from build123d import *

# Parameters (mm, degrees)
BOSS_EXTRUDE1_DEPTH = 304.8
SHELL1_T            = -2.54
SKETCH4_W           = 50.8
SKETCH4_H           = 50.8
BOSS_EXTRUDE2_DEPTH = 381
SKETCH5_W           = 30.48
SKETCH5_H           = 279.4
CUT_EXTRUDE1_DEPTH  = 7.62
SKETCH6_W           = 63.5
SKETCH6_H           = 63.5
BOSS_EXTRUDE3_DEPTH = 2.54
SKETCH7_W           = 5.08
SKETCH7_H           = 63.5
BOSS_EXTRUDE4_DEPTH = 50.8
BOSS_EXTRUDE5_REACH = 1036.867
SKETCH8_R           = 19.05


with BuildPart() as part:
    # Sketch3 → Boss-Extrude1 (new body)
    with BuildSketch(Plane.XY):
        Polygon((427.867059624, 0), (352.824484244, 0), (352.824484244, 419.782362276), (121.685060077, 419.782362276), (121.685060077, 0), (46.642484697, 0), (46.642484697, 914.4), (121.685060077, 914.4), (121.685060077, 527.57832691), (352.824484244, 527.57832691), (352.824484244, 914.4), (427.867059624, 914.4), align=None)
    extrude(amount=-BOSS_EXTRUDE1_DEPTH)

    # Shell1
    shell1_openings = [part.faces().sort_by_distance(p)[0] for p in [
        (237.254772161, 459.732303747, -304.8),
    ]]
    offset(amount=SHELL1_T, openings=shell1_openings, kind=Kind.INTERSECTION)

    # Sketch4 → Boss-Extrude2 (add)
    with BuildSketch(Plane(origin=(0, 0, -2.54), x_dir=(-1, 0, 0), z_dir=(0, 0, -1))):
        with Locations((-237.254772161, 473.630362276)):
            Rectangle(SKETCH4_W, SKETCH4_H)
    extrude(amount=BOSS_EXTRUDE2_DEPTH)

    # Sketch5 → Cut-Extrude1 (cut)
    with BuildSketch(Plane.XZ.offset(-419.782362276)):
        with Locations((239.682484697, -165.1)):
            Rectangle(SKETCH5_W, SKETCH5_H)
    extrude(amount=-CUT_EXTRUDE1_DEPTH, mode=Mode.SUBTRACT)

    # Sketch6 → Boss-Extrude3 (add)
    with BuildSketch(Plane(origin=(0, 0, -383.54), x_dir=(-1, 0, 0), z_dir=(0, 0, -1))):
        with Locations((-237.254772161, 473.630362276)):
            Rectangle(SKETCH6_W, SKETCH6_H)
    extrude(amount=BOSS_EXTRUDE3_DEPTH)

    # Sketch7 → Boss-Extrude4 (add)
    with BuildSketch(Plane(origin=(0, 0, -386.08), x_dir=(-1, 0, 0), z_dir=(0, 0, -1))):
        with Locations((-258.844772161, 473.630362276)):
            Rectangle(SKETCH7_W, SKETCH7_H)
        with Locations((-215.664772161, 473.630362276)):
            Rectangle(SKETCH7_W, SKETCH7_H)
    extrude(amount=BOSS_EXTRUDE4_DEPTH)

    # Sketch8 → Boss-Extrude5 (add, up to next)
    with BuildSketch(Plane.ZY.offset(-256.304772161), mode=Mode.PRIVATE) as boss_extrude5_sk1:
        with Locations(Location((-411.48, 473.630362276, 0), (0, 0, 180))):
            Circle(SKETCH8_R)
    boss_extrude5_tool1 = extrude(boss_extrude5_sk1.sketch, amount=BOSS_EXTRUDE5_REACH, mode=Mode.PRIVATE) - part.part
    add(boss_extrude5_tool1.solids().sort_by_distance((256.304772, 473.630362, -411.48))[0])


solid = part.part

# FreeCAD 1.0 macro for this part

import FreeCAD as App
import Part
import Sketcher
from FreeCAD import Vector
Q = App.Units.Quantity


def faces_at(feature, points):
    """Names of the faces that lie closest to the given points."""
    faces = feature.Shape.Faces
    near = lambda p: min(range(len(faces)), key=lambda i: faces[i].distToShape(Part.Vertex(*p))[0])
    return sorted({f"Face{near(p) + 1}" for p in points})

doc = App.newDocument("Part")
body = doc.addObject("PartDesign::Body", "Body")

sketch1 = body.newObject("Sketcher::SketchObject", "Sketch")
sketch1.AttachmentSupport = (doc.getObject("XY_Plane"), [""])
sketch1.MapMode = "FlatFace"
sketch1.addGeometry(Part.LineSegment(Vector(353, 0, 0), Vector(428, 0, 0)), False)
sketch1.addGeometry(Part.LineSegment(Vector(428, 0, 0), Vector(428, 914, 0)), False)
sketch1.addGeometry(Part.LineSegment(Vector(428, 914, 0), Vector(353, 914, 0)), False)
sketch1.addGeometry(Part.LineSegment(Vector(353, 914, 0), Vector(353, 528, 0)), False)
sketch1.addGeometry(Part.LineSegment(Vector(353, 528, 0), Vector(122, 528, 0)), False)
sketch1.addGeometry(Part.LineSegment(Vector(122, 528, 0), Vector(122, 914, 0)), False)
sketch1.addGeometry(Part.LineSegment(Vector(122, 914, 0), Vector(47, 914, 0)), False)
sketch1.addGeometry(Part.LineSegment(Vector(47, 914, 0), Vector(47, 0, 0)), False)
sketch1.addGeometry(Part.LineSegment(Vector(47, 0, 0), Vector(122, 0, 0)), False)
sketch1.addGeometry(Part.LineSegment(Vector(122, 0, 0), Vector(122, 420, 0)), False)
sketch1.addGeometry(Part.LineSegment(Vector(122, 420, 0), Vector(353, 420, 0)), False)
sketch1.addGeometry(Part.LineSegment(Vector(353, 420, 0), Vector(353, 0, 0)), False)
sketch1.addConstraint(Sketcher.Constraint("Coincident", 0, 2, 1, 1))
sketch1.addConstraint(Sketcher.Constraint("Coincident", 1, 2, 2, 1))
sketch1.addConstraint(Sketcher.Constraint("Coincident", 2, 2, 3, 1))
sketch1.addConstraint(Sketcher.Constraint("Coincident", 3, 2, 4, 1))
sketch1.addConstraint(Sketcher.Constraint("Coincident", 4, 2, 5, 1))
sketch1.addConstraint(Sketcher.Constraint("Coincident", 5, 2, 6, 1))
sketch1.addConstraint(Sketcher.Constraint("Coincident", 6, 2, 7, 1))
sketch1.addConstraint(Sketcher.Constraint("Coincident", 7, 2, 8, 1))
sketch1.addConstraint(Sketcher.Constraint("Coincident", 8, 2, 9, 1))
sketch1.addConstraint(Sketcher.Constraint("Coincident", 9, 2, 10, 1))
sketch1.addConstraint(Sketcher.Constraint("Coincident", 10, 2, 11, 1))
sketch1.addConstraint(Sketcher.Constraint("Coincident", 11, 2, 0, 1))
sketch1.addConstraint(Sketcher.Constraint("Horizontal", 0))
sketch1.addConstraint(Sketcher.Constraint("Vertical", 1))
sketch1.addConstraint(Sketcher.Constraint("Horizontal", 2))
sketch1.addConstraint(Sketcher.Constraint("Vertical", 3))
sketch1.addConstraint(Sketcher.Constraint("Horizontal", 4))
sketch1.addConstraint(Sketcher.Constraint("Vertical", 5))
sketch1.addConstraint(Sketcher.Constraint("Horizontal", 6))
sketch1.addConstraint(Sketcher.Constraint("Vertical", 7))
sketch1.addConstraint(Sketcher.Constraint("Horizontal", 8))
sketch1.addConstraint(Sketcher.Constraint("Vertical", 9))
sketch1.addConstraint(Sketcher.Constraint("Horizontal", 10))
sketch1.addConstraint(Sketcher.Constraint("Vertical", 11))
sketch1.addConstraint(Sketcher.Constraint("PointOnObject", 0, 2, -1))
sketch1.addConstraint(Sketcher.Constraint("PointOnObject", 7, 2, -1))
sketch1.addConstraint(Sketcher.Constraint("Horizontal", 2, 2, 5, 2))
sketch1.addConstraint(Sketcher.Constraint("Vertical", 5, 2, 8, 2))
sketch1.addConstraint(Sketcher.Constraint("Vertical", 3, 2, 10, 2))
sketch1.addConstraint(Sketcher.Constraint("Equal", 2, 6))
sketch1.addConstraint(Sketcher.Constraint("DistanceY", 1, 1, 1, 2, Q("36 in")))
sketch1.addConstraint(Sketcher.Constraint("DistanceX", 4, 2, 1, 2, 306.182))
sketch1.addConstraint(Sketcher.Constraint("DistanceX", 0, 1, 0, 2, 75.042575))
sketch1.addConstraint(Sketcher.Constraint("DistanceY", 3, 2, 3, 1, 386.821673))
sketch1.addConstraint(Sketcher.Constraint("DistanceY", 9, 1, 9, 2, 419.782362))
sketch1.addConstraint(Sketcher.Constraint("DistanceX", -1, 1, 0, 2, 427.86706))
pad1 = body.newObject("PartDesign::Pad", "Pad")
pad1.Profile = sketch1
pad1.Length = Q("12 in")
pad1.Reversed = True
doc.recompute()

thickness = body.newObject("PartDesign::Thickness", "Thickness")
thickness.Base = (pad1, faces_at(pad1, [(237.255, 457.2, -304.8)]))
thickness.Value = Q("0.1 in")
thickness.Reversed = True
thickness.Join = "Intersection"

sketch2 = body.newObject("Sketcher::SketchObject", "Sketch001")
sketch2.AttachmentSupport = (doc.getObject("XY_Plane"), [""])
sketch2.MapMode = "FlatFace"
sketch2.AttachmentOffset = App.Placement(Vector(0, 0, -0.1 * 25.4), App.Rotation())
sketch2.addGeometry(Part.LineSegment(Vector(263, 499, 0), Vector(263, 448, 0)), False)
sketch2.addGeometry(Part.LineSegment(Vector(263, 448, 0), Vector(212, 448, 0)), False)
sketch2.addGeometry(Part.LineSegment(Vector(212, 448, 0), Vector(212, 499, 0)), False)
sketch2.addGeometry(Part.LineSegment(Vector(212, 499, 0), Vector(263, 499, 0)), False)
sketch2.addConstraint(Sketcher.Constraint("Coincident", 0, 2, 1, 1))
sketch2.addConstraint(Sketcher.Constraint("Coincident", 1, 2, 2, 1))
sketch2.addConstraint(Sketcher.Constraint("Coincident", 2, 2, 3, 1))
sketch2.addConstraint(Sketcher.Constraint("Coincident", 3, 2, 0, 1))
sketch2.addConstraint(Sketcher.Constraint("Vertical", 0))
sketch2.addConstraint(Sketcher.Constraint("Horizontal", 1))
sketch2.addConstraint(Sketcher.Constraint("Vertical", 2))
sketch2.addConstraint(Sketcher.Constraint("Horizontal", 3))
sketch2.addConstraint(Sketcher.Constraint("Equal", 3, 0))
sketch2.addConstraint(Sketcher.Constraint("DistanceX", 1, 2, 1, 1, Q("2 in")))
sketch2.addConstraint(Sketcher.Constraint("DistanceX", -1, 1, 0, 2, 262.654772))
sketch2.addConstraint(Sketcher.Constraint("DistanceY", -1, 1, 0, 2, 448.230362))
pad2 = body.newObject("PartDesign::Pad", "Pad001")
pad2.Profile = sketch2
pad2.Length = Q("15 in")
pad2.Reversed = True

sketch3 = body.newObject("Sketcher::SketchObject", "Sketch002")
sketch3.AttachmentSupport = (doc.getObject("XZ_Plane"), [""])
sketch3.MapMode = "FlatFace"
sketch3.AttachmentOffset = App.Placement(Vector(0, 0, -419.782362), App.Rotation())
sketch3.addGeometry(Part.LineSegment(Vector(224, -25, 0), Vector(224, -305, 0)), False)
sketch3.addGeometry(Part.LineSegment(Vector(224, -305, 0), Vector(255, -305, 0)), False)
sketch3.addGeometry(Part.LineSegment(Vector(255, -305, 0), Vector(255, -25, 0)), False)
sketch3.addGeometry(Part.LineSegment(Vector(255, -25, 0), Vector(224, -25, 0)), False)
sketch3.addConstraint(Sketcher.Constraint("Coincident", 0, 2, 1, 1))
sketch3.addConstraint(Sketcher.Constraint("Coincident", 1, 2, 2, 1))
sketch3.addConstraint(Sketcher.Constraint("Coincident", 2, 2, 3, 1))
sketch3.addConstraint(Sketcher.Constraint("Coincident", 3, 2, 0, 1))
sketch3.addConstraint(Sketcher.Constraint("Vertical", 0))
sketch3.addConstraint(Sketcher.Constraint("Horizontal", 1))
sketch3.addConstraint(Sketcher.Constraint("Vertical", 2))
sketch3.addConstraint(Sketcher.Constraint("Horizontal", 3))
sketch3.addConstraint(Sketcher.Constraint("DistanceY", 0, 2, 0, 1, Q("11 in")))
sketch3.addConstraint(Sketcher.Constraint("DistanceX", 1, 1, 1, 2, Q("1.2 in")))
sketch3.addConstraint(Sketcher.Constraint("DistanceY", 0, 2, -1, 1, Q("12 in")))
sketch3.addConstraint(Sketcher.Constraint("DistanceX", -1, 1, 0, 2, 224.442485))
pocket1 = body.newObject("PartDesign::Pocket", "Pocket")
pocket1.Profile = sketch3
pocket1.Length = Q("0.3 in")

sketch4 = body.newObject("Sketcher::SketchObject", "Sketch003")
sketch4.AttachmentSupport = (doc.getObject("XY_Plane"), [""])
sketch4.MapMode = "FlatFace"
sketch4.AttachmentOffset = App.Placement(Vector(0, 0, -15.1 * 25.4), App.Rotation())
sketch4.addGeometry(Part.LineSegment(Vector(269, 505, 0), Vector(269, 442, 0)), False)
sketch4.addGeometry(Part.LineSegment(Vector(269, 442, 0), Vector(206, 442, 0)), False)
sketch4.addGeometry(Part.LineSegment(Vector(206, 442, 0), Vector(206, 505, 0)), False)
sketch4.addGeometry(Part.LineSegment(Vector(206, 505, 0), Vector(269, 505, 0)), False)
sketch4.addConstraint(Sketcher.Constraint("Coincident", 0, 2, 1, 1))
sketch4.addConstraint(Sketcher.Constraint("Coincident", 1, 2, 2, 1))
sketch4.addConstraint(Sketcher.Constraint("Coincident", 2, 2, 3, 1))
sketch4.addConstraint(Sketcher.Constraint("Coincident", 3, 2, 0, 1))
sketch4.addConstraint(Sketcher.Constraint("Vertical", 0))
sketch4.addConstraint(Sketcher.Constraint("Horizontal", 1))
sketch4.addConstraint(Sketcher.Constraint("Vertical", 2))
sketch4.addConstraint(Sketcher.Constraint("Horizontal", 3))
sketch4.addConstraint(Sketcher.Constraint("Equal", 3, 0))
sketch4.addConstraint(Sketcher.Constraint("DistanceX", 1, 2, 1, 1, Q("2.5 in")))
sketch4.addConstraint(Sketcher.Constraint("DistanceX", -1, 1, 0, 2, 269.004772))
sketch4.addConstraint(Sketcher.Constraint("DistanceY", -1, 1, 0, 2, 441.880362))
pad3 = body.newObject("PartDesign::Pad", "Pad002")
pad3.Profile = sketch4
pad3.Length = Q("0.1 in")
pad3.Reversed = True

sketch5 = body.newObject("Sketcher::SketchObject", "Sketch004")
sketch5.AttachmentSupport = (doc.getObject("XY_Plane"), [""])
sketch5.MapMode = "FlatFace"
sketch5.AttachmentOffset = App.Placement(Vector(0, 0, -15.2 * 25.4), App.Rotation())
sketch5.addGeometry(Part.LineSegment(Vector(261, 505, 0), Vector(261, 442, 0)), False)
sketch5.addGeometry(Part.LineSegment(Vector(261, 442, 0), Vector(256, 442, 0)), False)
sketch5.addGeometry(Part.LineSegment(Vector(256, 442, 0), Vector(256, 505, 0)), False)
sketch5.addGeometry(Part.LineSegment(Vector(256, 505, 0), Vector(261, 505, 0)), False)
sketch5.addGeometry(Part.LineSegment(Vector(218, 505, 0), Vector(218, 442, 0)), False)
sketch5.addGeometry(Part.LineSegment(Vector(218, 442, 0), Vector(213, 442, 0)), False)
sketch5.addGeometry(Part.LineSegment(Vector(213, 442, 0), Vector(213, 505, 0)), False)
sketch5.addGeometry(Part.LineSegment(Vector(213, 505, 0), Vector(218, 505, 0)), False)
sketch5.addConstraint(Sketcher.Constraint("Coincident", 0, 2, 1, 1))
sketch5.addConstraint(Sketcher.Constraint("Coincident", 1, 2, 2, 1))
sketch5.addConstraint(Sketcher.Constraint("Coincident", 2, 2, 3, 1))
sketch5.addConstraint(Sketcher.Constraint("Coincident", 3, 2, 0, 1))
sketch5.addConstraint(Sketcher.Constraint("Coincident", 4, 2, 5, 1))
sketch5.addConstraint(Sketcher.Constraint("Coincident", 5, 2, 6, 1))
sketch5.addConstraint(Sketcher.Constraint("Coincident", 6, 2, 7, 1))
sketch5.addConstraint(Sketcher.Constraint("Coincident", 7, 2, 4, 1))
sketch5.addConstraint(Sketcher.Constraint("Vertical", 0))
sketch5.addConstraint(Sketcher.Constraint("Horizontal", 1))
sketch5.addConstraint(Sketcher.Constraint("Vertical", 2))
sketch5.addConstraint(Sketcher.Constraint("Horizontal", 3))
sketch5.addConstraint(Sketcher.Constraint("Vertical", 4))
sketch5.addConstraint(Sketcher.Constraint("Horizontal", 5))
sketch5.addConstraint(Sketcher.Constraint("Vertical", 6))
sketch5.addConstraint(Sketcher.Constraint("Horizontal", 7))
sketch5.addConstraint(Sketcher.Constraint("Horizontal", 1, 2, 4, 2))
sketch5.addConstraint(Sketcher.Constraint("Horizontal", 3, 2, 6, 2))
sketch5.addConstraint(Sketcher.Constraint("Equal", 3, 5))
sketch5.addConstraint(Sketcher.Constraint("DistanceX", 1, 2, 1, 1, Q("0.2 in")))
sketch5.addConstraint(Sketcher.Constraint("DistanceY", 0, 2, 0, 1, Q("2.5 in")))
sketch5.addConstraint(Sketcher.Constraint("DistanceX", 4, 2, 1, 2, Q("1.5 in")))
sketch5.addConstraint(Sketcher.Constraint("DistanceX", -1, 1, 0, 2, 261.384772))
sketch5.addConstraint(Sketcher.Constraint("DistanceY", -1, 1, 0, 2, 441.880362))
pad4 = body.newObject("PartDesign::Pad", "Pad003")
pad4.Profile = sketch5
pad4.Length = Q("2 in")
pad4.Reversed = True

sketch6 = body.newObject("Sketcher::SketchObject", "Sketch005")
sketch6.AttachmentSupport = (doc.getObject("YZ_Plane"), [""])
sketch6.MapMode = "FlatFace"
sketch6.AttachmentOffset = App.Placement(Vector(0, 0, 256.304772), App.Rotation())
sketch6.addGeometry(Part.Circle(Vector(474, -411, 0), Vector(0, 0, 1), 19), False)
sketch6.addConstraint(Sketcher.Constraint("Diameter", 0, Q("1.5 in")))
sketch6.addConstraint(Sketcher.Constraint("DistanceY", 0, 3, -1, 1, Q("16.2 in")))
sketch6.addConstraint(Sketcher.Constraint("DistanceX", -1, 1, 0, 3, 473.630362))
pad5 = body.newObject("PartDesign::Pad", "Pad004")
pad5.Profile = sketch6
pad5.Type = "UpToFirst"
pad5.Reversed = True

doc.recompute()
